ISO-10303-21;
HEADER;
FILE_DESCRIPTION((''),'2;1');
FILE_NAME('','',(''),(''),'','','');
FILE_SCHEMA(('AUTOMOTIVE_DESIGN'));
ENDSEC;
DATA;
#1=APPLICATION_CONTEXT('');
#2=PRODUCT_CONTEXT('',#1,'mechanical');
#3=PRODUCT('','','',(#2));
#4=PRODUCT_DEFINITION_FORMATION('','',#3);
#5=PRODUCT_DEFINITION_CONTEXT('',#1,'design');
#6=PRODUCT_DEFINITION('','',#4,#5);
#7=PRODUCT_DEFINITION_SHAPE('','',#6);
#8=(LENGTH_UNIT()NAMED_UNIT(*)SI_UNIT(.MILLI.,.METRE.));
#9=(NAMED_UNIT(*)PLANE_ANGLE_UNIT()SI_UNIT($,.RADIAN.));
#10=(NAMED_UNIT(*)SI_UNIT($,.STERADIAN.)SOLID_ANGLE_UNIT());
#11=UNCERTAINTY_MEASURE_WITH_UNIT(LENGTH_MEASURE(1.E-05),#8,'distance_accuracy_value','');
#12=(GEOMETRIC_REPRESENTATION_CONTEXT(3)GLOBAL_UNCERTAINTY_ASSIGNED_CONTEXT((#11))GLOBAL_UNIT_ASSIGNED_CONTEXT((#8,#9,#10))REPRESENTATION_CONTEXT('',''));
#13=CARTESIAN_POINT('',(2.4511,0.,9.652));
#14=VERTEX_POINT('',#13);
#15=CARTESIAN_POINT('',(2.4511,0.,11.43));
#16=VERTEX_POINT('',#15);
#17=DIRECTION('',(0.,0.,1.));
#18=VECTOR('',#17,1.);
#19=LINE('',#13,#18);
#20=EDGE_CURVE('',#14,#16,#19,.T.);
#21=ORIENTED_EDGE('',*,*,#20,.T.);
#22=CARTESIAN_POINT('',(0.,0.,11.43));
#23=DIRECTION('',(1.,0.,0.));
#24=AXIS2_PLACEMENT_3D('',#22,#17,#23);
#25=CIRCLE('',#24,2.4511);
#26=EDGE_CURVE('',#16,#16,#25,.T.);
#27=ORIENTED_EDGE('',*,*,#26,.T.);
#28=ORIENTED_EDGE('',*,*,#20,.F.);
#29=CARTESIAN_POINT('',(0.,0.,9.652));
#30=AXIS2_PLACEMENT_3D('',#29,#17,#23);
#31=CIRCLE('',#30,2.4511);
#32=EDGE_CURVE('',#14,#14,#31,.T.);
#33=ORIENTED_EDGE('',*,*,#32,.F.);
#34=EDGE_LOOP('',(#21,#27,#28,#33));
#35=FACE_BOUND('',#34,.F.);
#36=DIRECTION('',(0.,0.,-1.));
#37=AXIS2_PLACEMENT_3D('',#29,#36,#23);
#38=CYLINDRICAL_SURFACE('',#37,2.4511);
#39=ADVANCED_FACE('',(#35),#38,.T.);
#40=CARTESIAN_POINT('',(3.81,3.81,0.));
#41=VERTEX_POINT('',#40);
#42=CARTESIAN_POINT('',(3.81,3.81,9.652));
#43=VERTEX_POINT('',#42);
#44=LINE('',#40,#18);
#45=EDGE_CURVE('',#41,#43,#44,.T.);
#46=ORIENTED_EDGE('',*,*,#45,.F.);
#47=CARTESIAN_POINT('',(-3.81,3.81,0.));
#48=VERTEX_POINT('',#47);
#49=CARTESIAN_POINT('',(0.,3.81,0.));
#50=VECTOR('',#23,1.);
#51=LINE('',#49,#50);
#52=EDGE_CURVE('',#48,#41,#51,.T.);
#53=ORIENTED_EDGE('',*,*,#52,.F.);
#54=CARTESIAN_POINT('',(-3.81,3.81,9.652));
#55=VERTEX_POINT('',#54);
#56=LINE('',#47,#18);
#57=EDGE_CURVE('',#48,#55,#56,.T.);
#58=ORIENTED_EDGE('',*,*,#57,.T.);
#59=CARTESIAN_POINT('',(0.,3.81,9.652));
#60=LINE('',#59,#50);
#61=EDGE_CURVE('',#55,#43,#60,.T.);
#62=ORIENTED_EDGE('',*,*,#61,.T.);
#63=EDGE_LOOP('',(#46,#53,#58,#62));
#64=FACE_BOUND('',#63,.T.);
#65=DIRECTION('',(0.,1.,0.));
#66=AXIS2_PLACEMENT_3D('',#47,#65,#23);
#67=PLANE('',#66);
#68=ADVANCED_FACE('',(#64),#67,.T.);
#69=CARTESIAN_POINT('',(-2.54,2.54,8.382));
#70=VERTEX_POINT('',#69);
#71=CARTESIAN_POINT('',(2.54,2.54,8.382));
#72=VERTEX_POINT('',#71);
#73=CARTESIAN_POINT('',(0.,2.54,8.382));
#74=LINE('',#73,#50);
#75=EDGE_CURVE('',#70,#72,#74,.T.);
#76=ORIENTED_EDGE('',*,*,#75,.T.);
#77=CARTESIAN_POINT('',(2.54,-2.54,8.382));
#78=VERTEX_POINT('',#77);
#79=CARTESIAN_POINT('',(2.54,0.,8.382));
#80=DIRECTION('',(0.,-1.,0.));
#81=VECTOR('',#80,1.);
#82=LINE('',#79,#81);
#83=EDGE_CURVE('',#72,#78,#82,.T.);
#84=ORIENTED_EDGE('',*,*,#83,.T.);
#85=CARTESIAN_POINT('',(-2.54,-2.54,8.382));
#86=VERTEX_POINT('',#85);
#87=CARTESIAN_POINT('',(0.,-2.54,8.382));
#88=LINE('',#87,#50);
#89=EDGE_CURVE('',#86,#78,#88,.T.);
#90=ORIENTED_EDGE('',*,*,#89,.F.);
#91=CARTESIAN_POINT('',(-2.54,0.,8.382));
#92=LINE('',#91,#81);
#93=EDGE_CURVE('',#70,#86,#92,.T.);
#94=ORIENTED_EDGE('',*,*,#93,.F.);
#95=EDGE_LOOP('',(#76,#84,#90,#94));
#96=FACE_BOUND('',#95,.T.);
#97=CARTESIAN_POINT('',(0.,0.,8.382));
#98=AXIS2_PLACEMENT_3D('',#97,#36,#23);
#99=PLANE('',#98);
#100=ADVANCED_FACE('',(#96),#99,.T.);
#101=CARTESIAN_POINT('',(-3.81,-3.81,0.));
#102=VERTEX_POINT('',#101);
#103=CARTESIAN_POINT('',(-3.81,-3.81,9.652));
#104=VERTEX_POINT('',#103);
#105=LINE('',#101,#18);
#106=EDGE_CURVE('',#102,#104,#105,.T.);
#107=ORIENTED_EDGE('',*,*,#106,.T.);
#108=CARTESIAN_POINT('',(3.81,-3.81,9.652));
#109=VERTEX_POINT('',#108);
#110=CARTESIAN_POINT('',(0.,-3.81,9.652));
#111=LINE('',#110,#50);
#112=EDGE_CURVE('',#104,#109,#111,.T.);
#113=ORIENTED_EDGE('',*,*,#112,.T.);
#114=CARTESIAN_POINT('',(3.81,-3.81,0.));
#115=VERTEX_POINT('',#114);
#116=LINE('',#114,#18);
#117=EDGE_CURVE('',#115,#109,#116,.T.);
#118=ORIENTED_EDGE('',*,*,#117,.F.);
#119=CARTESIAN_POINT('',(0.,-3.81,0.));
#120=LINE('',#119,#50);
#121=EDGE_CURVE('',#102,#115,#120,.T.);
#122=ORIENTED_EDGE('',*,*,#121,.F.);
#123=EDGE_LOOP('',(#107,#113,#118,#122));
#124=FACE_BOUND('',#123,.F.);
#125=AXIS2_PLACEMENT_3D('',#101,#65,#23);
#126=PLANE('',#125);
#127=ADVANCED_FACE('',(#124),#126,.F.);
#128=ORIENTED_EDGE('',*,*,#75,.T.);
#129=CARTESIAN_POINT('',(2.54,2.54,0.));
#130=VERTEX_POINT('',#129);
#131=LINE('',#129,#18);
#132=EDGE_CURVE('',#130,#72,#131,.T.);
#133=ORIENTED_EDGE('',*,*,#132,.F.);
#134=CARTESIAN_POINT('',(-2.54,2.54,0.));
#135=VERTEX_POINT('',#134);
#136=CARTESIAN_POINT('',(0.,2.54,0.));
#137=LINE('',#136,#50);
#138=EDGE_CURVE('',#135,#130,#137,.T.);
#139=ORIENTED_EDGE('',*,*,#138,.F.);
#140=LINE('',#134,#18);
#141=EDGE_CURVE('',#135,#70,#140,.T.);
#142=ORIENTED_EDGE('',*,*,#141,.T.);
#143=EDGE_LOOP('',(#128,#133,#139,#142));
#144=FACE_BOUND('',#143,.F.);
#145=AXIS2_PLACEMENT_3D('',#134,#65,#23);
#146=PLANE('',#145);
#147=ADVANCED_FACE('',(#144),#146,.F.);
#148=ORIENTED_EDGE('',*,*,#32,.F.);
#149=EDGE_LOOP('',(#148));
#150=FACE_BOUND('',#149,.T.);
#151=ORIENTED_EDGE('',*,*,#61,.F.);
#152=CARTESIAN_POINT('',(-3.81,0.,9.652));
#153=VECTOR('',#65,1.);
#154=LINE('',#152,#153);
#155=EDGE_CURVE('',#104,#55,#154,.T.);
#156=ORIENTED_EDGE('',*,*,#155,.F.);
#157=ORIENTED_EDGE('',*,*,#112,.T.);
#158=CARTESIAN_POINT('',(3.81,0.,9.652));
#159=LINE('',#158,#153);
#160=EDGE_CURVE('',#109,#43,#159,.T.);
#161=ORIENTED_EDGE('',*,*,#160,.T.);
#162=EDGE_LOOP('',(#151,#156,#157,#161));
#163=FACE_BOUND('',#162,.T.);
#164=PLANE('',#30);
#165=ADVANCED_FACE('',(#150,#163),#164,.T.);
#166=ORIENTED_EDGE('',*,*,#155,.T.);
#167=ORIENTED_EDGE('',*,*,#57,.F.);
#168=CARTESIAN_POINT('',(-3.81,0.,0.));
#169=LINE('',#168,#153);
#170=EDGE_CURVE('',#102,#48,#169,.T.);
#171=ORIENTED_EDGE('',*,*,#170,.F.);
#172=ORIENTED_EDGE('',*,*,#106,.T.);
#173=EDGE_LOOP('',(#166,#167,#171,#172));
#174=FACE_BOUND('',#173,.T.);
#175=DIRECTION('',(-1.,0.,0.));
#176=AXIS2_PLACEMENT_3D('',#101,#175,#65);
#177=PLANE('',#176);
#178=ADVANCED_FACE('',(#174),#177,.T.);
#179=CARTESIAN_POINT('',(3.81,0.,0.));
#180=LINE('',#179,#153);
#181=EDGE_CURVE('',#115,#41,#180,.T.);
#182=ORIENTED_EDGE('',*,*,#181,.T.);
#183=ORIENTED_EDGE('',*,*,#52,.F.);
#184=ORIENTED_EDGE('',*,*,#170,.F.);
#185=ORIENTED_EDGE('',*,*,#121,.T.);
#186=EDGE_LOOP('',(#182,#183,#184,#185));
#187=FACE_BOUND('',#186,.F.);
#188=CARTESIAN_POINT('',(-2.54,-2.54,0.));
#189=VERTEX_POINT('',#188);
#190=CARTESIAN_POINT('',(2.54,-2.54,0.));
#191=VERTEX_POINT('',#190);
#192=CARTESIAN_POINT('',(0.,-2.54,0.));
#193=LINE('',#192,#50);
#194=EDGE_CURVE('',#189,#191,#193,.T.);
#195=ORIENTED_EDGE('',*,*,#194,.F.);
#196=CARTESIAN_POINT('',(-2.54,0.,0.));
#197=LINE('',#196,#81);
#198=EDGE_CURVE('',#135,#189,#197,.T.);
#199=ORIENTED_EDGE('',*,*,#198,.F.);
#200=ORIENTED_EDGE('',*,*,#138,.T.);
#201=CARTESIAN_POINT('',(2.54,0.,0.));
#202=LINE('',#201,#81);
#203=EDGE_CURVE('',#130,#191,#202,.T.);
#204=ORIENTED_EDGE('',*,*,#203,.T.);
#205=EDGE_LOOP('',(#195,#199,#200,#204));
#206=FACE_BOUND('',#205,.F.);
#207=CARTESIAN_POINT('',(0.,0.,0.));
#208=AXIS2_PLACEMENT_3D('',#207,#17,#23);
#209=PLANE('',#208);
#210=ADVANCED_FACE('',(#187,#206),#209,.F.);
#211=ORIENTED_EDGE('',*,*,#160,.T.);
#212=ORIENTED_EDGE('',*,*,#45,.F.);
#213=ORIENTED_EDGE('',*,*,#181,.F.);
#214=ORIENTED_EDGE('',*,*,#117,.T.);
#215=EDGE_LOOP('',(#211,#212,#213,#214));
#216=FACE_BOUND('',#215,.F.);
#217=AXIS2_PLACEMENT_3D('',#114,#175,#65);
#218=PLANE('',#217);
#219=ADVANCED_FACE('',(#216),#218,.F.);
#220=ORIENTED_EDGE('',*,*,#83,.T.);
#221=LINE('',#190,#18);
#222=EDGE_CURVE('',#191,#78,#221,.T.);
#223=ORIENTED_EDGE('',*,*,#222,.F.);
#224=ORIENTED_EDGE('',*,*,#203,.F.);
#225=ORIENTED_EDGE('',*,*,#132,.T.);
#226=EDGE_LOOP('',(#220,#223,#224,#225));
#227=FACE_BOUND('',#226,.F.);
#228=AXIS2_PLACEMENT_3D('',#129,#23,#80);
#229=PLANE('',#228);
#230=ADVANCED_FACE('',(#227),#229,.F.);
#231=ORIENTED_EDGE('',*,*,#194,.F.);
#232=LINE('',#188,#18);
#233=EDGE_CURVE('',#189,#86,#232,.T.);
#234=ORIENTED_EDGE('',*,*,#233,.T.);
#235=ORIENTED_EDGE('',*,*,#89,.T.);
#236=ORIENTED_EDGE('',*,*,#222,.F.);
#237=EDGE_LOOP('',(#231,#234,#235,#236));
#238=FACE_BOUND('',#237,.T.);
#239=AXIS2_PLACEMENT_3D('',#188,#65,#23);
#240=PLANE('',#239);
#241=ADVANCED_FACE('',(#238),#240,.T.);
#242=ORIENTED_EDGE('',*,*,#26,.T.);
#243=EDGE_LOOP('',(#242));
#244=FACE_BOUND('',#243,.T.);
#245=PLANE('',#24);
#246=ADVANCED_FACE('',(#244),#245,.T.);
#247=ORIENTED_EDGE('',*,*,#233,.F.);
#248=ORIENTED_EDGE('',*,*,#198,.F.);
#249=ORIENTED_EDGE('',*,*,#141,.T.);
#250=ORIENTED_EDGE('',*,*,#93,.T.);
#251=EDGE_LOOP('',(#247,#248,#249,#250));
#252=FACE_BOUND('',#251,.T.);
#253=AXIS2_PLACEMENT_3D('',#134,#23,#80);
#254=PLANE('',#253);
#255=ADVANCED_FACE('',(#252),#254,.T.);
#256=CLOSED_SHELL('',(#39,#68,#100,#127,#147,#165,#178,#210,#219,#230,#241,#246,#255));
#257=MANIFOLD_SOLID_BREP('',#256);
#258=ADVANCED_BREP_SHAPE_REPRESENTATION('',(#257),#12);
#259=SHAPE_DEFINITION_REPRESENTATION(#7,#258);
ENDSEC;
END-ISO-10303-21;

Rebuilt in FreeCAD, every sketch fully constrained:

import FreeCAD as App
import Part
import Sketcher

V = App.Vector
Q = App.Units.Quantity


def add_polygon(sketch, points):
    """Adds a closed chain of lines whose ends are joined by coincident constraints."""
    first, n = sketch.GeometryCount, len(points)
    for a, b in zip(points, points[1:] + points[:1]):
        sketch.addGeometry(Part.LineSegment(App.Vector(*a, 0), App.Vector(*b, 0)), False)
    for i in range(n):
        sketch.addConstraint(Sketcher.Constraint("Coincident", first + i, 2, first + (i + 1) % n, 1))

doc = App.newDocument("Part")
body = doc.addObject("PartDesign::Body", "Body")

sketch1 = body.newObject("Sketcher::SketchObject", "Sketch")
sketch1.AttachmentSupport = (doc.getObject("XY_Plane"), [""])
sketch1.MapMode = "FlatFace"
add_polygon(sketch1, [(-4, 4), (-4, -4), (4, -4), (4, 4)])
sketch1.addConstraint(Sketcher.Constraint("Vertical", 0))
sketch1.addConstraint(Sketcher.Constraint("Horizontal", 1))
sketch1.addConstraint(Sketcher.Constraint("Vertical", 2))
sketch1.addConstraint(Sketcher.Constraint("Horizontal", 3))
sketch1.addConstraint(Sketcher.Constraint("Symmetric", 0, 2, 2, 2, -1, 1))
sketch1.addConstraint(Sketcher.Constraint("Equal", 3, 0))
sketch1.addConstraint(Sketcher.Constraint("DistanceX", 1, 1, 1, 2, Q("0.3 in")))
pad1 = body.newObject("PartDesign::Pad", "Pad")
pad1.Profile = sketch1
pad1.Length = Q("0.38 in")

sketch2 = body.newObject("Sketcher::SketchObject", "Sketch001")
sketch2.AttachmentSupport = (doc.getObject("XY_Plane"), [""])
sketch2.MapMode = "FlatFace"
sketch2.AttachmentOffset = App.Placement(V(0, 0, 0.38 * 25.4), App.Rotation())
sketch2.addGeometry(Part.Circle(V(0, 0, 0), V(0, 0, 1), 2.5), False)
sketch2.addConstraint(Sketcher.Constraint("Coincident", 0, 3, -1, 1))
sketch2.addConstraint(Sketcher.Constraint("Diameter", 0, Q("0.193 in")))
pad2 = body.newObject("PartDesign::Pad", "Pad001")
pad2.Profile = sketch2
pad2.Length = Q("0.07 in")

sketch3 = body.newObject("Sketcher::SketchObject", "Sketch002")
sketch3.AttachmentSupport = (doc.getObject("XY_Plane"), [""])
sketch3.MapMode = "FlatFace"
add_polygon(sketch3, [(-3, -3), (-3, 3), (3, 3), (3, -3)])
sketch3.addConstraint(Sketcher.Constraint("Vertical", 0))
sketch3.addConstraint(Sketcher.Constraint("Horizontal", 1))
sketch3.addConstraint(Sketcher.Constraint("Vertical", 2))
sketch3.addConstraint(Sketcher.Constraint("Horizontal", 3))
sketch3.addConstraint(Sketcher.Constraint("Symmetric", 0, 2, 2, 2, -1, 1))
sketch3.addConstraint(Sketcher.Constraint("Equal", 3, 0))
sketch3.addConstraint(Sketcher.Constraint("DistanceX", 1, 1, 1, 2, Q("0.2 in")))
pocket1 = body.newObject("PartDesign::Pocket", "Pocket")
pocket1.Profile = sketch3
pocket1.Length = Q("0.33 in")
pocket1.Reversed = True

doc.recompute()
